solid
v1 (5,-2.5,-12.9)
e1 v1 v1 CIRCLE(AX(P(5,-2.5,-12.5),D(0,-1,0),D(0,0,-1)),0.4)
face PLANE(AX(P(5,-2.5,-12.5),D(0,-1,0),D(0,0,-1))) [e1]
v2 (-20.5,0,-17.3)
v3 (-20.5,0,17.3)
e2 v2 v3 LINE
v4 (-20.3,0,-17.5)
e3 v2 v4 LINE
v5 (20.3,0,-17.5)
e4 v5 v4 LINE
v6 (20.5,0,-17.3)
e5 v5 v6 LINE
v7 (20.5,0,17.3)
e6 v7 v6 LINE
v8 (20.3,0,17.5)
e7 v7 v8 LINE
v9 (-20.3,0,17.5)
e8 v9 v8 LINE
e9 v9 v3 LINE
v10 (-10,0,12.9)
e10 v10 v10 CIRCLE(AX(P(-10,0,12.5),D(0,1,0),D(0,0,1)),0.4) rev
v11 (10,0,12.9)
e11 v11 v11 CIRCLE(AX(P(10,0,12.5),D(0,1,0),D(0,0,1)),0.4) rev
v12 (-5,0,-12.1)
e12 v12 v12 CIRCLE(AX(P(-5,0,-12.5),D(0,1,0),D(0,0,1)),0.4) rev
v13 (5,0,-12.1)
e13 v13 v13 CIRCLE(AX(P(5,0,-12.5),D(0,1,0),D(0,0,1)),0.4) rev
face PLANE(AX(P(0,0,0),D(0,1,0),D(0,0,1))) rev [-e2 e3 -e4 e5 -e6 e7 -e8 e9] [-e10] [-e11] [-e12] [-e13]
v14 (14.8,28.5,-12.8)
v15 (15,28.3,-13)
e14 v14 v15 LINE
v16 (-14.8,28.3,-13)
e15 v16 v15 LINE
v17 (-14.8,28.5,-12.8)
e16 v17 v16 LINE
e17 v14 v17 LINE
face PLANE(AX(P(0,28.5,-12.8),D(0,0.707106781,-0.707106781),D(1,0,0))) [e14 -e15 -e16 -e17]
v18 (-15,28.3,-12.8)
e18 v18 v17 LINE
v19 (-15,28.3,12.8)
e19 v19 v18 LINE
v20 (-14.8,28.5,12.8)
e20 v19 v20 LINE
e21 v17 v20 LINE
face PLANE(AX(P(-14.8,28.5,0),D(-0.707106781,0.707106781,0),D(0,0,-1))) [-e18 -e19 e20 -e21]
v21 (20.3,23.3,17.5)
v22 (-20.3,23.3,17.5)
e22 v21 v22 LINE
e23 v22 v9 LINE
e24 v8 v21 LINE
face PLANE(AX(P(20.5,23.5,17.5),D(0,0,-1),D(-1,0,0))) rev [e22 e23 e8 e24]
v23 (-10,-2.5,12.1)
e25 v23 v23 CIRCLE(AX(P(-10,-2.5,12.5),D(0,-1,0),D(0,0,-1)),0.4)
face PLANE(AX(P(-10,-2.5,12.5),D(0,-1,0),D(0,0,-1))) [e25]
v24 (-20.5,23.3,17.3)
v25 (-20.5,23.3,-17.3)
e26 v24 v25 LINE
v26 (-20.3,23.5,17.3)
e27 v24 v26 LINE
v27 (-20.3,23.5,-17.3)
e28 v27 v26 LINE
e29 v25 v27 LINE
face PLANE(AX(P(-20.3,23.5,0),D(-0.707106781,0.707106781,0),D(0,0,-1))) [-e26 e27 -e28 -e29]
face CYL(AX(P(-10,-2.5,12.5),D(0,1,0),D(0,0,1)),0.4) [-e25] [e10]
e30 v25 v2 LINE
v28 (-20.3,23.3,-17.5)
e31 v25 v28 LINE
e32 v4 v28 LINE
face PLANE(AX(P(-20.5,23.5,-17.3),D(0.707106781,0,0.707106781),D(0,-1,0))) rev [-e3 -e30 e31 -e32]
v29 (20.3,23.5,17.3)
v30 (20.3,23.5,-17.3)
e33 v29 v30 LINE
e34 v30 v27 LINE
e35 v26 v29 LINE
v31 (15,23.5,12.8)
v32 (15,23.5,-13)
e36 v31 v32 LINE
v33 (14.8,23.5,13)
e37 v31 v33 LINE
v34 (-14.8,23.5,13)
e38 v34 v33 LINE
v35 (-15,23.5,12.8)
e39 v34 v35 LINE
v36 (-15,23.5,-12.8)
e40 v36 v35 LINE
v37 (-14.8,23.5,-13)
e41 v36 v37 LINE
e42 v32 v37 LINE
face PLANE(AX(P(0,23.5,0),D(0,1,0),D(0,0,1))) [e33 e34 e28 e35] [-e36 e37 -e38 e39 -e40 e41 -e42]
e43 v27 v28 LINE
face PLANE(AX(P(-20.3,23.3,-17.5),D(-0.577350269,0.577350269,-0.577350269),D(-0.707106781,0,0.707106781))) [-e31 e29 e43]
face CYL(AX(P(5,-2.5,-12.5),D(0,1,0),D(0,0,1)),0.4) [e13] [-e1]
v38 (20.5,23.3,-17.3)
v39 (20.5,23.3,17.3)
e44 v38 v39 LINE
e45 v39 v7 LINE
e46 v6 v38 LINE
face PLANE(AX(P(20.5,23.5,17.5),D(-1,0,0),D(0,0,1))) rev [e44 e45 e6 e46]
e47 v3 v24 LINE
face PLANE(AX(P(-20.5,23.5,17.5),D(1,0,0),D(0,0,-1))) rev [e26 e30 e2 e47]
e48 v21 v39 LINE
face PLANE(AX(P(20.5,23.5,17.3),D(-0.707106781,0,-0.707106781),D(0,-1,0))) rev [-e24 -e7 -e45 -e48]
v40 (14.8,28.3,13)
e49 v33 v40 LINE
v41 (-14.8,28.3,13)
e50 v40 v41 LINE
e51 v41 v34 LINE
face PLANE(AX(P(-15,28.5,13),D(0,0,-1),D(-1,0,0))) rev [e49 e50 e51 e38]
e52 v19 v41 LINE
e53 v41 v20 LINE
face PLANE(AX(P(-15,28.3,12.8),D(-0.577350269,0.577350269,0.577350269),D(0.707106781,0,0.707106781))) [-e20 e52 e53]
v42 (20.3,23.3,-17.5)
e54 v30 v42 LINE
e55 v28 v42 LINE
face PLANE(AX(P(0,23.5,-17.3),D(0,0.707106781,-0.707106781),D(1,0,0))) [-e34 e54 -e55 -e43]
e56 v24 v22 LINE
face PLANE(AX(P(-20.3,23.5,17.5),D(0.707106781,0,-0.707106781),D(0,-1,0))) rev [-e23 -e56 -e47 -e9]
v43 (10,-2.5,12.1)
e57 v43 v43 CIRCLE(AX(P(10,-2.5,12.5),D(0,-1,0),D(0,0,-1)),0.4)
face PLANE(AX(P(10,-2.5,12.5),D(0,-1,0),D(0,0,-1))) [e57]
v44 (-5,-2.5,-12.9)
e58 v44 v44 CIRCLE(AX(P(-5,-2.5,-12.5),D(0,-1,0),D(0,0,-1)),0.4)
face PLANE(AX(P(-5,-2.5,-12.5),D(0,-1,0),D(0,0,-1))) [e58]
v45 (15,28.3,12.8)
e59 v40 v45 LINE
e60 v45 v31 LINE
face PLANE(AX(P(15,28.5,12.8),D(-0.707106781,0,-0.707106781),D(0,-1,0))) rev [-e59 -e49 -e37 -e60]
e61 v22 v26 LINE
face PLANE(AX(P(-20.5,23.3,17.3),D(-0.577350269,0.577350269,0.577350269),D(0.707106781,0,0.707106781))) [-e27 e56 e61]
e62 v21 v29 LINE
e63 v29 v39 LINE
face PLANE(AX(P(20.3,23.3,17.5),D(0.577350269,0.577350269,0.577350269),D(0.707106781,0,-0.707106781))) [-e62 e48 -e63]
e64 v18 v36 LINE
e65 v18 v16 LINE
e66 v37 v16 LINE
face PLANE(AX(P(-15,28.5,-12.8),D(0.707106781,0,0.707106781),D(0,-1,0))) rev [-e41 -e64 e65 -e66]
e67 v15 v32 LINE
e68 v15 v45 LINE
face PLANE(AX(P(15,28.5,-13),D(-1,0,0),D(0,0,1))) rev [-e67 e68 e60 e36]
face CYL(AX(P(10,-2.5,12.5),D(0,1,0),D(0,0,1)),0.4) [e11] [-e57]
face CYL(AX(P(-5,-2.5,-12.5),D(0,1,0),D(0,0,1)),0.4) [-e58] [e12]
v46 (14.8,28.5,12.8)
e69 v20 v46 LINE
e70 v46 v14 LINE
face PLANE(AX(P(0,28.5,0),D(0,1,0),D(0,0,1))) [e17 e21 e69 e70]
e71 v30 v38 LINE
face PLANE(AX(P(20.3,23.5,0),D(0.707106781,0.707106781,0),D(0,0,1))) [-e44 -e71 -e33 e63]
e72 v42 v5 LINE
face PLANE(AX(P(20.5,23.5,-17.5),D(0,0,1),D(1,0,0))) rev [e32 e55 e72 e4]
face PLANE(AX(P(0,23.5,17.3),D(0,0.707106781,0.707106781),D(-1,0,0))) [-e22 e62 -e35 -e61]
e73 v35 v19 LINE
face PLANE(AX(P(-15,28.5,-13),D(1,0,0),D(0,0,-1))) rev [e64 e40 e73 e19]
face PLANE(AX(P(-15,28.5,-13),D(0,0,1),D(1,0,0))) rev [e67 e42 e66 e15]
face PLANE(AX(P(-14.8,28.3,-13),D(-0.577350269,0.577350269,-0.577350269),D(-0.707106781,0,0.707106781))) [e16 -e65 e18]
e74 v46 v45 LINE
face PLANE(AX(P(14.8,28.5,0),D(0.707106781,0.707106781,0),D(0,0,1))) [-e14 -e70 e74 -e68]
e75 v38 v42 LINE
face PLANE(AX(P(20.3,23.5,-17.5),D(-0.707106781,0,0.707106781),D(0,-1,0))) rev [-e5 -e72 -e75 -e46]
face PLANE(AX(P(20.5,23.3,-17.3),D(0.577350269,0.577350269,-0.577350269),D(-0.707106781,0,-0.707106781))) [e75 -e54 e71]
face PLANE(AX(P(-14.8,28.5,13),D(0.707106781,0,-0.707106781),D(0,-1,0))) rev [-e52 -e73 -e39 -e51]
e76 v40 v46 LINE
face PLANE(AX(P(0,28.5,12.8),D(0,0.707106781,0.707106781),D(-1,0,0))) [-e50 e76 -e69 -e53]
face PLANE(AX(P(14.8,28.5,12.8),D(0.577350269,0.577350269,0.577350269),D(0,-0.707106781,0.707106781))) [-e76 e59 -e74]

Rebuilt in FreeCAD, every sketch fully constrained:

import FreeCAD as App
import Part
import Sketcher


def edges_at(feature, points):
    """Names of the edges that pass closest to the given points."""
    edges = feature.Shape.Edges
    near = lambda p: min(range(len(edges)), key=lambda i: edges[i].distToShape(Part.Vertex(*p))[0])
    return sorted({f"Edge{near(p) + 1}" for p in points})


def add_polygon(sketch, points):
    """Adds a closed chain of lines whose ends are joined by coincident constraints."""
    first, n = sketch.GeometryCount, len(points)
    for a, b in zip(points, points[1:] + points[:1]):
        sketch.addGeometry(Part.LineSegment(App.Vector(*a, 0), App.Vector(*b, 0)), False)
    for i in range(n):
        sketch.addConstraint(Sketcher.Constraint("Coincident", first + i, 2, first + (i + 1) % n, 1))

doc = App.newDocument("Part")
body = doc.addObject("PartDesign::Body", "Body")

# Sketch on XZ plane
sketch1 = body.newObject("Sketcher::SketchObject", "Sketch")
sketch1.AttachmentSupport = (doc.getObject("XZ_Plane"), [""])
sketch1.MapMode = "FlatFace"
add_polygon(sketch1, [(-20.5, -17.5), (-20.5, 17.5), (20.5, 17.5), (20.5, -17.5)])  # lines 0-3
sketch1.addConstraint([
    Sketcher.Constraint("Vertical", 0),
    Sketcher.Constraint("Horizontal", 1),
    Sketcher.Constraint("Vertical", 2),
    Sketcher.Constraint("Horizontal", 3),
    Sketcher.Constraint("Symmetric", 0, 2, 2, 2, -1, 1),
    Sketcher.Constraint("DistanceX", 1, 1, 1, 2, 41.0),
    Sketcher.Constraint("DistanceY", 0, 1, 0, 2, 35.0),
])
pad1 = body.newObject("PartDesign::Pad", "Pad")
pad1.Profile = sketch1
pad1.Length = 23.5
pad1.Reversed = True

# Sketch on XZ plane
sketch2 = body.newObject("Sketcher::SketchObject", "Sketch001")
sketch2.AttachmentSupport = (doc.getObject("XZ_Plane"), [""])
sketch2.MapMode = "FlatFace"
sketch2.AttachmentOffset = App.Placement(App.Vector(0, 0, -23.5), App.Rotation())
add_polygon(sketch2, [(-15, -13), (-15, 13), (15, 13), (15, -13)])  # lines 0-3
sketch2.addConstraint([
    Sketcher.Constraint("Vertical", 0),
    Sketcher.Constraint("Horizontal", 1),
    Sketcher.Constraint("Vertical", 2),
    Sketcher.Constraint("Horizontal", 3),
    Sketcher.Constraint("Symmetric", 0, 2, 2, 2, -1, 1),
    Sketcher.Constraint("DistanceX", 1, 1, 1, 2, 30.0),
    Sketcher.Constraint("DistanceY", 0, 1, 0, 2, 26.0),
])
pad2 = body.newObject("PartDesign::Pad", "Pad001")
pad2.Profile = sketch2
pad2.Length = 5
pad2.Reversed = True

# Sketch on XZ plane
sketch3 = body.newObject("Sketcher::SketchObject", "Sketch002")
sketch3.AttachmentSupport = (doc.getObject("XZ_Plane"), [""])
sketch3.MapMode = "FlatFace"
sketch3.addGeometry([
    Part.Circle(App.Vector(-10, 12.5, 0), App.Vector(0, 0, 1), 0.4),
    Part.Circle(App.Vector(10, 12.5, 0), App.Vector(0, 0, 1), 0.4),
    Part.Circle(App.Vector(-5, -12.5, 0), App.Vector(0, 0, 1), 0.4),
    Part.Circle(App.Vector(5, -12.5, 0), App.Vector(0, 0, 1), 0.4),
], False)
sketch3.addConstraint([
    Sketcher.Constraint("Equal", 0, 1),
    Sketcher.Constraint("Equal", 1, 2),
    Sketcher.Constraint("Equal", 2, 3),
    Sketcher.Constraint("Symmetric", 0, 3, 1, 3, -2),
    Sketcher.Constraint("Symmetric", 2, 3, 3, 3, -2),
    Sketcher.Constraint("Diameter", 0, 0.8),
    Sketcher.Constraint("DistanceX", 0, 3, -1, 1, 10.0),
    Sketcher.Constraint("DistanceX", 2, 3, -1, 1, 5.0),
    Sketcher.Constraint("DistanceY", 2, 3, 0, 3, 25.0),
    Sketcher.Constraint("DistanceY", -1, 1, 0, 3, 12.5),
])
pad3 = body.newObject("PartDesign::Pad", "Pad002")
pad3.Profile = sketch3
pad3.Length = 2.5
doc.recompute()

chamfer = body.newObject("PartDesign::Chamfer", "Chamfer")
chamfer.Base = (pad3, edges_at(pad3, [
    (20.5, 23.5, 0),
    (0, 23.5, -17.5),
    (15, 26, 13),
    (-15, 26, -13),
    (-15, 26, 13),
    (15, 28.5, 0),
    (0, 28.5, -13),
    (-15, 28.5, 0),
    (0, 28.5, 13),
    (-20.5, 23.5, 0),
    (0, 23.5, 17.5),
    (-20.5, 11.75, -17.5),
    (20.5, 11.75, -17.5),
    (20.5, 11.75, 17.5),
    (-20.5, 11.75, 17.5),
]))
chamfer.Size = 0.2

doc.recompute()
